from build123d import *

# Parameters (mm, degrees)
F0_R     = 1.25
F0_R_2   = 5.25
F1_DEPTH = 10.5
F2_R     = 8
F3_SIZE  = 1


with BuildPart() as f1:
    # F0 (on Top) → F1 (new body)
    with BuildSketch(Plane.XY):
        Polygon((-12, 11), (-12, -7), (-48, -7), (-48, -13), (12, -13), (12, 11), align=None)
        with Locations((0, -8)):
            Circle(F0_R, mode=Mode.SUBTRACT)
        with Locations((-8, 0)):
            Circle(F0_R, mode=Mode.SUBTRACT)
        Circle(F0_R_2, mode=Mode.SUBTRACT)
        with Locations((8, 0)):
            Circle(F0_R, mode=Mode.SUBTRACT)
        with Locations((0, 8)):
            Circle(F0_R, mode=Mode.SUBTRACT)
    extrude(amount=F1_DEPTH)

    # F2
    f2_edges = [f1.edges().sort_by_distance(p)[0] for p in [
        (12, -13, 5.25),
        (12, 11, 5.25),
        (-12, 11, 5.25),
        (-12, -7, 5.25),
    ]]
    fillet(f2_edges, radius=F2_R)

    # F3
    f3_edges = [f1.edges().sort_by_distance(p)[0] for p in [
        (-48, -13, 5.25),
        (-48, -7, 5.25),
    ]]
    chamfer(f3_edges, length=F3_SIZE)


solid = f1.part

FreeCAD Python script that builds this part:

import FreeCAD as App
import Part
import Sketcher
from FreeCAD import Vector


def edges_at(feature, points):
    """Names of the edges that pass closest to the given points."""
    edges = feature.Shape.Edges
    near = lambda p: min(range(len(edges)), key=lambda i: edges[i].distToShape(Part.Vertex(*p))[0])
    return sorted({f"Edge{near(p) + 1}" for p in points})


def add_polygon(sketch, points):
    """Adds a closed chain of lines whose ends are joined by coincident constraints."""
    first, n = sketch.GeometryCount, len(points)
    for a, b in zip(points, points[1:] + points[:1]):
        sketch.addGeometry(Part.LineSegment(App.Vector(*a, 0), App.Vector(*b, 0)), False)
    for i in range(n):
        sketch.addConstraint(Sketcher.Constraint("Coincident", first + i, 2, first + (i + 1) % n, 1))

doc = App.newDocument("Part")
body = doc.addObject("PartDesign::Body", "Body")

# Sketch on XY plane
sketch1 = doc.addObject("Sketcher::SketchObject", "Sketch")
body.addObject(sketch1)
sketch1.AttachmentSupport = (doc.XY_Plane, [""])
sketch1.MapMode = "FlatFace"
add_polygon(sketch1, [(-12, 11), (-12, -7), (-48, -7), (-48, -13), (12, -13), (12, 11)])  # lines 0-5
sketch1.addGeometry(Part.Circle(Vector(0, -8, 0), Vector(0, 0, 1), 1.25), False)  # 6
sketch1.addGeometry(Part.Circle(Vector(-8, 0, 0), Vector(0, 0, 1), 1.25), False)  # 7
sketch1.addGeometry(Part.Circle(Vector(0, 0, 0), Vector(0, 0, 1), 5.25), False)  # 8
sketch1.addGeometry(Part.Circle(Vector(8, 0, 0), Vector(0, 0, 1), 1.25), False)  # 9
sketch1.addGeometry(Part.Circle(Vector(0, 8, 0), Vector(0, 0, 1), 1.25), False)  # 10
sketch1.addConstraint(Sketcher.Constraint("Vertical", 0))
sketch1.addConstraint(Sketcher.Constraint("Horizontal", 1))
sketch1.addConstraint(Sketcher.Constraint("Vertical", 2))
sketch1.addConstraint(Sketcher.Constraint("Horizontal", 3))
sketch1.addConstraint(Sketcher.Constraint("Vertical", 4))
sketch1.addConstraint(Sketcher.Constraint("Horizontal", 5))
sketch1.addConstraint(Sketcher.Constraint("Coincident", 8, 3, -1, 1))
sketch1.addConstraint(Sketcher.Constraint("Equal", 6, 7))
sketch1.addConstraint(Sketcher.Constraint("Equal", 7, 9))
sketch1.addConstraint(Sketcher.Constraint("Equal", 9, 10))
sketch1.addConstraint(Sketcher.Constraint("Symmetric", 7, 3, 9, 3, -1, 1))
sketch1.addConstraint(Sketcher.Constraint("Symmetric", 6, 3, 10, 3, -1, 1))
sketch1.addConstraint(Sketcher.Constraint("PointOnObject", 6, 3, -2))
sketch1.addConstraint(Sketcher.Constraint("PointOnObject", 7, 3, -1))
sketch1.addConstraint(Sketcher.Constraint("Equal", 5, 4))
sketch1.addConstraint(Sketcher.Constraint("Diameter", 6, 2.5))
sketch1.addConstraint(Sketcher.Constraint("Diameter", 8, 10.5))
sketch1.addConstraint(Sketcher.Constraint("DistanceX", 1, 2, 1, 1, 36.0))
sketch1.addConstraint(Sketcher.Constraint("DistanceX", 3, 1, 3, 2, 60.0))
sketch1.addConstraint(Sketcher.Constraint("DistanceY", 0, 2, 0, 1, 18.0))
sketch1.addConstraint(Sketcher.Constraint("DistanceY", 6, 3, -1, 1, 8.0))
sketch1.addConstraint(Sketcher.Constraint("DistanceX", 7, 3, -1, 1, 8.0))
sketch1.addConstraint(Sketcher.Constraint("DistanceX", 0, 2, -1, 1, 12.0))
sketch1.addConstraint(Sketcher.Constraint("DistanceY", 0, 2, -1, 1, 7.0))
pad1 = doc.addObject("PartDesign::Pad", "Pad")
body.addObject(pad1)
pad1.Profile = sketch1
pad1.Length = 10.5
doc.recompute()

fillet = doc.addObject("PartDesign::Fillet", "Fillet")
body.addObject(fillet)
fillet.Base = (pad1, edges_at(pad1, [
    (12, -13, 5.25),
    (12, 11, 5.25),
    (-12, 11, 5.25),
    (-12, -7, 5.25),
]))
fillet.Radius = 8
doc.recompute()

chamfer = doc.addObject("PartDesign::Chamfer", "Chamfer")
body.addObject(chamfer)
chamfer.Base = (fillet, edges_at(fillet, [(-48, -13, 5.25), (-48, -7, 5.25)]))
chamfer.Size = 1

doc.recompute()
